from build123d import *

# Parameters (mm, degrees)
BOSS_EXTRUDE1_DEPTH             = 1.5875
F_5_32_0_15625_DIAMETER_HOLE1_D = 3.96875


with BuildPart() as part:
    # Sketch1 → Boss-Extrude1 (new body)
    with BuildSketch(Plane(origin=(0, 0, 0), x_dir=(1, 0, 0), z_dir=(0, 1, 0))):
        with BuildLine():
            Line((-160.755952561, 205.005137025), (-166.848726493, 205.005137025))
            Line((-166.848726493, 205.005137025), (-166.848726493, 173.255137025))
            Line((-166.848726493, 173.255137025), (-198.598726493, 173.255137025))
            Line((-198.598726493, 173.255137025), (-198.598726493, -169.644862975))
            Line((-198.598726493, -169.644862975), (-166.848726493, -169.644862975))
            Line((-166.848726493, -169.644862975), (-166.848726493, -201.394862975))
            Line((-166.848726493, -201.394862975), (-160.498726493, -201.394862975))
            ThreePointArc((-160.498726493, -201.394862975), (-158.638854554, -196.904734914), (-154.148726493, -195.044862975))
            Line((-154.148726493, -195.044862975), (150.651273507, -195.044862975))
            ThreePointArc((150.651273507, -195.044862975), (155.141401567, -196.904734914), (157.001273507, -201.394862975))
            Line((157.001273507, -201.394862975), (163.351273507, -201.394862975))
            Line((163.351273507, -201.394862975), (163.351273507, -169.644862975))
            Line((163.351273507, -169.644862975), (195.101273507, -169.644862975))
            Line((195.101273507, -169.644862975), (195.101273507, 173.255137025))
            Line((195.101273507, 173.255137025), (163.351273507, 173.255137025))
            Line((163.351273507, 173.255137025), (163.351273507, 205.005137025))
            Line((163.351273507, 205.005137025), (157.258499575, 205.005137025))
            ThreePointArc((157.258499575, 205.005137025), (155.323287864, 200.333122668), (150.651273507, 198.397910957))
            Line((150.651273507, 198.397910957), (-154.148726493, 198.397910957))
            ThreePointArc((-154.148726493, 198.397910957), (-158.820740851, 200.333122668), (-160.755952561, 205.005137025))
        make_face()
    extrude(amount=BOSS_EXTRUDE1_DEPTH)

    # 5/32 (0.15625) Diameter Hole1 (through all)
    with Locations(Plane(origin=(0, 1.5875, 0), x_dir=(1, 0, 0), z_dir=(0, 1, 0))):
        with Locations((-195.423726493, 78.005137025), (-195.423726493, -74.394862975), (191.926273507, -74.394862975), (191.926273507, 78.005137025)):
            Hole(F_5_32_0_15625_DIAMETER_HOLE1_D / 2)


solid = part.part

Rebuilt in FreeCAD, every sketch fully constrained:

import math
import FreeCAD as App
import Part
import Sketcher

V = App.Vector
Q = App.Units.Quantity

doc = App.newDocument("Part")
body = doc.addObject("PartDesign::Body", "Body")

# Sketch on XZ plane
sketch1 = doc.addObject("Sketcher::SketchObject", "Sketch")
body.addObject(sketch1)
sketch1.AttachmentSupport = (doc.XZ_Plane, [""])
sketch1.MapMode = "FlatFace"
sketch1.addGeometry(Part.LineSegment(V(-160.755953, -205.005137, 0), V(-166.848726, -205.005137, 0)), False)
sketch1.addGeometry(Part.LineSegment(V(-166.848726, -205.005137, 0), V(-166.848726, -173.255137, 0)), False)
sketch1.addGeometry(Part.LineSegment(V(-166.848726, -173.255137, 0), V(-198.598726, -173.255137, 0)), False)
sketch1.addGeometry(Part.LineSegment(V(-198.598726, -173.255137, 0), V(-198.598726, 169.644863, 0)), False)
sketch1.addGeometry(Part.LineSegment(V(-198.598726, 169.644863, 0), V(-166.848726, 169.644863, 0)), False)
sketch1.addGeometry(Part.LineSegment(V(-166.848726, 169.644863, 0), V(-166.848726, 201.394863, 0)), False)
sketch1.addGeometry(Part.LineSegment(V(-166.848726, 201.394863, 0), V(-160.498726, 201.394863, 0)), False)
sketch1.addGeometry(Part.ArcOfCircle(Part.Circle(V(-154.148726, 201.394863, 0), V(0, 0, 1), 6.35), math.radians(180), math.radians(270)), False)
sketch1.addGeometry(Part.LineSegment(V(-154.148726, 195.044863, 0), V(150.651274, 195.044863, 0)), False)
sketch1.addGeometry(Part.ArcOfCircle(Part.Circle(V(150.651274, 201.394863, 0), V(0, 0, 1), 6.35), math.radians(-90), math.radians(0)), False)
sketch1.addGeometry(Part.LineSegment(V(157.001274, 201.394863, 0), V(163.351274, 201.394863, 0)), False)
sketch1.addGeometry(Part.LineSegment(V(163.351274, 201.394863, 0), V(163.351274, 169.644863, 0)), False)
sketch1.addGeometry(Part.LineSegment(V(163.351274, 169.644863, 0), V(195.101274, 169.644863, 0)), False)
sketch1.addGeometry(Part.LineSegment(V(195.101274, 169.644863, 0), V(195.101274, -173.255137, 0)), False)
sketch1.addGeometry(Part.LineSegment(V(195.101274, -173.255137, 0), V(163.351274, -173.255137, 0)), False)
sketch1.addGeometry(Part.LineSegment(V(163.351274, -173.255137, 0), V(163.351274, -205.005137, 0)), False)
sketch1.addGeometry(Part.LineSegment(V(163.351274, -205.005137, 0), V(157.2585, -205.005137, 0)), False)
sketch1.addGeometry(Part.ArcOfCircle(Part.Circle(V(150.651274, -205.005137, 0), V(0, 0, 1), 6.607226), math.radians(0), math.radians(90)), False)
sketch1.addGeometry(Part.LineSegment(V(150.651274, -198.397911, 0), V(-154.148726, -198.397911, 0)), False)
sketch1.addGeometry(Part.ArcOfCircle(Part.Circle(V(-154.148726, -205.005137, 0), V(0, 0, 1), 6.607226), math.radians(90), math.radians(180)), False)
sketch1.addConstraint(Sketcher.Constraint("Coincident", 0, 2, 1, 1))
sketch1.addConstraint(Sketcher.Constraint("Coincident", 1, 2, 2, 1))
sketch1.addConstraint(Sketcher.Constraint("Coincident", 2, 2, 3, 1))
sketch1.addConstraint(Sketcher.Constraint("Coincident", 3, 2, 4, 1))
sketch1.addConstraint(Sketcher.Constraint("Coincident", 4, 2, 5, 1))
sketch1.addConstraint(Sketcher.Constraint("Coincident", 5, 2, 6, 1))
sketch1.addConstraint(Sketcher.Constraint("Coincident", 6, 2, 7, 1))
sketch1.addConstraint(Sketcher.Constraint("Tangent", 7, 2, 8, 1))
sketch1.addConstraint(Sketcher.Constraint("Tangent", 8, 2, 9, 1))
sketch1.addConstraint(Sketcher.Constraint("Coincident", 9, 2, 10, 1))
sketch1.addConstraint(Sketcher.Constraint("Coincident", 10, 2, 11, 1))
sketch1.addConstraint(Sketcher.Constraint("Coincident", 11, 2, 12, 1))
sketch1.addConstraint(Sketcher.Constraint("Coincident", 12, 2, 13, 1))
sketch1.addConstraint(Sketcher.Constraint("Coincident", 13, 2, 14, 1))
sketch1.addConstraint(Sketcher.Constraint("Coincident", 14, 2, 15, 1))
sketch1.addConstraint(Sketcher.Constraint("Coincident", 15, 2, 16, 1))
sketch1.addConstraint(Sketcher.Constraint("Coincident", 16, 2, 17, 1))
sketch1.addConstraint(Sketcher.Constraint("Tangent", 17, 2, 18, 1))
sketch1.addConstraint(Sketcher.Constraint("Tangent", 18, 2, 19, 1))
sketch1.addConstraint(Sketcher.Constraint("Coincident", 19, 2, 0, 1))
sketch1.addConstraint(Sketcher.Constraint("Horizontal", 0))
sketch1.addConstraint(Sketcher.Constraint("Vertical", 1))
sketch1.addConstraint(Sketcher.Constraint("Horizontal", 2))
sketch1.addConstraint(Sketcher.Constraint("Vertical", 3))
sketch1.addConstraint(Sketcher.Constraint("Horizontal", 4))
sketch1.addConstraint(Sketcher.Constraint("Vertical", 5))
sketch1.addConstraint(Sketcher.Constraint("Horizontal", 6))
sketch1.addConstraint(Sketcher.Constraint("Horizontal", 8))
sketch1.addConstraint(Sketcher.Constraint("Horizontal", 10))
sketch1.addConstraint(Sketcher.Constraint("Vertical", 11))
sketch1.addConstraint(Sketcher.Constraint("Horizontal", 12))
sketch1.addConstraint(Sketcher.Constraint("Vertical", 13))
sketch1.addConstraint(Sketcher.Constraint("Horizontal", 14))
sketch1.addConstraint(Sketcher.Constraint("Vertical", 15))
sketch1.addConstraint(Sketcher.Constraint("Horizontal", 16))
sketch1.addConstraint(Sketcher.Constraint("Horizontal", 18))
sketch1.addConstraint(Sketcher.Constraint("Equal", 7, 9))
sketch1.addConstraint(Sketcher.Constraint("Equal", 17, 19))
sketch1.addConstraint(Sketcher.Constraint("Horizontal", 19, 3, 0, 2))
sketch1.addConstraint(Sketcher.Constraint("Horizontal", 9, 3, 5, 2))
sketch1.addConstraint(Sketcher.Constraint("Horizontal", 6, 2, 9, 2))
sketch1.addConstraint(Sketcher.Constraint("Horizontal", 4, 2, 11, 2))
sketch1.addConstraint(Sketcher.Constraint("Horizontal", 2, 2, 13, 2))
sketch1.addConstraint(Sketcher.Constraint("Horizontal", 0, 2, 15, 2))
sketch1.addConstraint(Sketcher.Constraint("Vertical", 9, 3, 17, 3))
sketch1.addConstraint(Sketcher.Constraint("Vertical", 7, 3, 19, 3))
sketch1.addConstraint(Sketcher.Constraint("Vertical", 1, 2, 4, 2))
sketch1.addConstraint(Sketcher.Constraint("Vertical", 11, 2, 14, 2))
sketch1.addConstraint(Sketcher.Constraint("Equal", 6, 10))
sketch1.addConstraint(Sketcher.Constraint("Equal", 4, 12))
sketch1.addConstraint(Sketcher.Constraint("Equal", 14, 1))
sketch1.addConstraint(Sketcher.Constraint("Equal", 1, 5))
sketch1.addConstraint(Sketcher.Constraint("DistanceX", 8, 1, 8, 2, Q("12 in")))
sketch1.addConstraint(Sketcher.Constraint("Radius", 7, Q("0.25 in")))
sketch1.addConstraint(Sketcher.Constraint("DistanceY", 3, 1, 3, 2, Q("13.5 in")))
sketch1.addConstraint(Sketcher.Constraint("DistanceY", 17, 3, 9, 3, Q("16 in")))
sketch1.addConstraint(Sketcher.Constraint("DistanceX", 1, 2, 14, 2, Q("13 in")))
sketch1.addConstraint(Sketcher.Constraint("Radius", 17, 6.607226))
sketch1.addConstraint(Sketcher.Constraint("DistanceX", -1, 1, 16, 2, 157.2585))
sketch1.addConstraint(Sketcher.Constraint("DistanceY", 17, 2, -1, 1, 198.397911))
pad1 = doc.addObject("PartDesign::Pad", "Pad")
body.addObject(pad1)
pad1.Profile = sketch1
pad1.Length = Q("0.0625 in")
pad1.Reversed = True

# Sketch on XZ plane
sketch2 = doc.addObject("Sketcher::SketchObject", "Sketch001")
body.addObject(sketch2)
sketch2.AttachmentSupport = (doc.XZ_Plane, [""])
sketch2.MapMode = "FlatFace"
sketch2.AttachmentOffset = App.Placement(V(0, 0, -0.0625 * 25.4), App.Rotation())
sketch2.addGeometry(Part.Circle(V(-195.423726, -78.005137, 0), V(0, 0, 1), 1.984375), False)
sketch2.addGeometry(Part.Circle(V(-195.423726, 74.394863, 0), V(0, 0, 1), 1.984375), False)
sketch2.addGeometry(Part.Circle(V(191.926274, 74.394863, 0), V(0, 0, 1), 1.984375), False)
sketch2.addGeometry(Part.Circle(V(191.926274, -78.005137, 0), V(0, 0, 1), 1.984375), False)
sketch2.addConstraint(Sketcher.Constraint("Equal", 0, 1))
sketch2.addConstraint(Sketcher.Constraint("Equal", 1, 2))
sketch2.addConstraint(Sketcher.Constraint("Equal", 2, 3))
sketch2.addConstraint(Sketcher.Constraint("Horizontal", 1, 3, 2, 3))
sketch2.addConstraint(Sketcher.Constraint("Horizontal", 0, 3, 3, 3))
sketch2.addConstraint(Sketcher.Constraint("Vertical", 0, 3, 1, 3))
sketch2.addConstraint(Sketcher.Constraint("Vertical", 2, 3, 3, 3))
sketch2.addConstraint(Sketcher.Constraint("Diameter", 0, Q("0.15625 in")))
sketch2.addConstraint(Sketcher.Constraint("DistanceY", 0, 3, 1, 3, Q("6 in")))
sketch2.addConstraint(Sketcher.Constraint("DistanceX", 1, 3, 2, 3, Q("15.25 in")))
sketch2.addConstraint(Sketcher.Constraint("DistanceX", 0, 3, -1, 1, 195.423726))
sketch2.addConstraint(Sketcher.Constraint("DistanceY", 0, 3, -1, 1, 78.005137))
doc.recompute()
hole = doc.addObject("PartDesign::Hole", "Hole")
body.addObject(hole)
hole.Profile = sketch2
hole.ThreadType = "None"
hole.Diameter = Q("0.15625 in")
hole.DepthType = "ThroughAll"
hole.Reversed = True

doc.recompute()
